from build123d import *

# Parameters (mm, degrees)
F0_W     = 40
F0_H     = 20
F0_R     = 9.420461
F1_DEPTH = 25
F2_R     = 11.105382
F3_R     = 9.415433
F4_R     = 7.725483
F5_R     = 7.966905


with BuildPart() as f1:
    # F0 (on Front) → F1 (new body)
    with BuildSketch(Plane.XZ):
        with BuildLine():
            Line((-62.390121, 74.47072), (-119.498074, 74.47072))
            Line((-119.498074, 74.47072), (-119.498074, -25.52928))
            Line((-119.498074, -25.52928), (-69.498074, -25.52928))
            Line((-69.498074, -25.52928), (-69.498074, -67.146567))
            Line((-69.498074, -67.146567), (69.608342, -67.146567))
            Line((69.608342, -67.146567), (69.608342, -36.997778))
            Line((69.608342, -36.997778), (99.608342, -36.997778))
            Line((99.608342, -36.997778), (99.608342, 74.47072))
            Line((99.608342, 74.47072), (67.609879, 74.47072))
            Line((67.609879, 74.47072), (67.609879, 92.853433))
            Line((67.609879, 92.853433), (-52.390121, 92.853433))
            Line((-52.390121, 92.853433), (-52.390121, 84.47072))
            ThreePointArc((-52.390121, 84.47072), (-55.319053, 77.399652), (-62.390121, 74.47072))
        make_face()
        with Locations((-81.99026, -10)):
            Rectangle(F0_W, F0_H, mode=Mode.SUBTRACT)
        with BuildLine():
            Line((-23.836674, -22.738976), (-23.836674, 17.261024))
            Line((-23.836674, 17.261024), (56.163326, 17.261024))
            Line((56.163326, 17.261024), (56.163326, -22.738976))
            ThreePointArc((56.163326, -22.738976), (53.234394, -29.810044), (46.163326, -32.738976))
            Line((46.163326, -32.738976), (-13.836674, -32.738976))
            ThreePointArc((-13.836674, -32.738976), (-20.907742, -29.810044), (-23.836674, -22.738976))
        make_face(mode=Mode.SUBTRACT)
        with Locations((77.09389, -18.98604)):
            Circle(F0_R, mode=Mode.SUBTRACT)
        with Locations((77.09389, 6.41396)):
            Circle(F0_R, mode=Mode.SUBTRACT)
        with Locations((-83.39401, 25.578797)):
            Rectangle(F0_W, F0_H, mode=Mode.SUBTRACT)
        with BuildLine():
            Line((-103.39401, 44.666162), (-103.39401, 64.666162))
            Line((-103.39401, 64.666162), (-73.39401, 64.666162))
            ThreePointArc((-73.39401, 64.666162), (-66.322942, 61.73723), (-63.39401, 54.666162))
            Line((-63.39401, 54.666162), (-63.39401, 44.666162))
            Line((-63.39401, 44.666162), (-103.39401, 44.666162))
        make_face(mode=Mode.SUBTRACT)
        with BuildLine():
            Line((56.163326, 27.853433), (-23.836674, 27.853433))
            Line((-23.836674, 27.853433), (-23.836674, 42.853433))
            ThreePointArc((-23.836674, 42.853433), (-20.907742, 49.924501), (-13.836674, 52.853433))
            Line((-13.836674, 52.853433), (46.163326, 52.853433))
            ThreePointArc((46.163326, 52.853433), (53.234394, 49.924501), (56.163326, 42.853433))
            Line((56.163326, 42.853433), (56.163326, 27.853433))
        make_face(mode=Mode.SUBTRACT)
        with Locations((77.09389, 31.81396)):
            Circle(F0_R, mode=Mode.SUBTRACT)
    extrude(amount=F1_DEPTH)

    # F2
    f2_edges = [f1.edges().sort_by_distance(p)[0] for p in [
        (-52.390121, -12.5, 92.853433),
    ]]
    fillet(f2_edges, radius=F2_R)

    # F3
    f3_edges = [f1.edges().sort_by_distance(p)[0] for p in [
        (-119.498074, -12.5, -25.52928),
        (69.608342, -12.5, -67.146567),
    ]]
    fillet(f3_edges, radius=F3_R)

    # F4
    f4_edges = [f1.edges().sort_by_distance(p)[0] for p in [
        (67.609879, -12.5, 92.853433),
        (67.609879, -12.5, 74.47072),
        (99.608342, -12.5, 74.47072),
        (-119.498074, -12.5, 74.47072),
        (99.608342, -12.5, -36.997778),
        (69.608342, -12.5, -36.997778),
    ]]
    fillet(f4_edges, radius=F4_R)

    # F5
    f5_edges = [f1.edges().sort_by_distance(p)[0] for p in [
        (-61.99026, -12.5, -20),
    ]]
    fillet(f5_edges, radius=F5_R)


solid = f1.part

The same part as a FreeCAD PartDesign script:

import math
import FreeCAD as App
import Part
import Sketcher

V = App.Vector
Q = App.Units.Quantity


def edges_at(feature, points):
    """Names of the edges that pass closest to the given points."""
    edges = feature.Shape.Edges
    near = lambda p: min(range(len(edges)), key=lambda i: edges[i].distToShape(Part.Vertex(*p))[0])
    return sorted({f"Edge{near(p) + 1}" for p in points})


def add_polygon(sketch, points):
    """Adds a closed chain of lines whose ends are joined by coincident constraints."""
    first, n = sketch.GeometryCount, len(points)
    for a, b in zip(points, points[1:] + points[:1]):
        sketch.addGeometry(Part.LineSegment(App.Vector(*a, 0), App.Vector(*b, 0)), False)
    for i in range(n):
        sketch.addConstraint(Sketcher.Constraint("Coincident", first + i, 2, first + (i + 1) % n, 1))

doc = App.newDocument("Part")
body = doc.addObject("PartDesign::Body", "Body")

# Sketch on XZ plane
sketch1 = body.newObject("Sketcher::SketchObject", "Sketch")
sketch1.AttachmentSupport = (doc.getObject("XZ_Plane"), [""])
sketch1.MapMode = "FlatFace"
sketch1.addGeometry(Part.LineSegment(V(-62, 74, 0), V(-119, 74, 0)), False)  # 0
sketch1.addGeometry(Part.LineSegment(V(-119, 74, 0), V(-119, -26, 0)), False)  # 1
sketch1.addGeometry(Part.LineSegment(V(-119, -26, 0), V(-69, -26, 0)), False)  # 2
sketch1.addGeometry(Part.LineSegment(V(-69, -26, 0), V(-69, -67, 0)), False)  # 3
sketch1.addGeometry(Part.LineSegment(V(-69, -67, 0), V(70, -67, 0)), False)  # 4
sketch1.addGeometry(Part.LineSegment(V(70, -67, 0), V(70, -37, 0)), False)  # 5
sketch1.addGeometry(Part.LineSegment(V(70, -37, 0), V(100, -37, 0)), False)  # 6
sketch1.addGeometry(Part.LineSegment(V(100, -37, 0), V(100, 74, 0)), False)  # 7
sketch1.addGeometry(Part.LineSegment(V(100, 74, 0), V(68, 74, 0)), False)  # 8
sketch1.addGeometry(Part.LineSegment(V(68, 74, 0), V(68, 93, 0)), False)  # 9
sketch1.addGeometry(Part.LineSegment(V(68, 93, 0), V(-52, 93, 0)), False)  # 10
sketch1.addGeometry(Part.LineSegment(V(-52, 93, 0), V(-52, 84, 0)), False)  # 11
sketch1.addGeometry(Part.ArcOfCircle(Part.Circle(V(-62, 84, 0), V(0, 0, 1), 10), math.radians(-90), math.radians(0)), False)  # 12
add_polygon(sketch1, [(-62, -20), (-102, -20), (-102, 0), (-62, 0)])  # lines 13-16
sketch1.addGeometry(Part.Circle(V(77, -19, 0), V(0, 0, 1), 9), False)  # 17
sketch1.addGeometry(Part.ArcOfCircle(Part.Circle(V(-14, -23, 0), V(0, 0, 1), 10), math.radians(180), math.radians(270)), False)  # 18
sketch1.addGeometry(Part.LineSegment(V(-24, -23, 0), V(-24, 17, 0)), False)  # 19
sketch1.addGeometry(Part.LineSegment(V(-24, 17, 0), V(56, 17, 0)), False)  # 20
sketch1.addGeometry(Part.LineSegment(V(56, 17, 0), V(56, -23, 0)), False)  # 21
sketch1.addGeometry(Part.ArcOfCircle(Part.Circle(V(46, -23, 0), V(0, 0, 1), 10), math.radians(-90), math.radians(0)), False)  # 22
sketch1.addGeometry(Part.LineSegment(V(46, -33, 0), V(-14, -33, 0)), False)  # 23
sketch1.addGeometry(Part.Circle(V(77, 6, 0), V(0, 0, 1), 9), False)  # 24
add_polygon(sketch1, [(-63, 16), (-103, 16), (-103, 36), (-63, 36)])  # lines 25-28
sketch1.addGeometry(Part.LineSegment(V(-63, 45, 0), V(-103, 45, 0)), False)  # 29
sketch1.addGeometry(Part.LineSegment(V(-103, 45, 0), V(-103, 65, 0)), False)  # 30
sketch1.addGeometry(Part.LineSegment(V(-103, 65, 0), V(-73, 65, 0)), False)  # 31
sketch1.addGeometry(Part.ArcOfCircle(Part.Circle(V(-73, 55, 0), V(0, 0, 1), 10), math.radians(0), math.radians(90)), False)  # 32
sketch1.addGeometry(Part.LineSegment(V(-63, 55, 0), V(-63, 45, 0)), False)  # 33
sketch1.addGeometry(Part.Circle(V(77, 32, 0), V(0, 0, 1), 9), False)  # 34
sketch1.addGeometry(Part.LineSegment(V(56, 43, 0), V(56, 28, 0)), False)  # 35
sketch1.addGeometry(Part.LineSegment(V(56, 28, 0), V(-24, 28, 0)), False)  # 36
sketch1.addGeometry(Part.LineSegment(V(-24, 28, 0), V(-24, 43, 0)), False)  # 37
sketch1.addGeometry(Part.ArcOfCircle(Part.Circle(V(-14, 43, 0), V(0, 0, 1), 10), math.radians(90), math.radians(180)), False)  # 38
sketch1.addGeometry(Part.LineSegment(V(-14, 53, 0), V(46, 53, 0)), False)  # 39
sketch1.addGeometry(Part.ArcOfCircle(Part.Circle(V(46, 43, 0), V(0, 0, 1), 10), math.radians(0), math.radians(90)), False)  # 40
sketch1.addConstraint(Sketcher.Constraint("Coincident", 0, 2, 1, 1))
sketch1.addConstraint(Sketcher.Constraint("Coincident", 1, 2, 2, 1))
sketch1.addConstraint(Sketcher.Constraint("Coincident", 2, 2, 3, 1))
sketch1.addConstraint(Sketcher.Constraint("Coincident", 3, 2, 4, 1))
sketch1.addConstraint(Sketcher.Constraint("Coincident", 4, 2, 5, 1))
sketch1.addConstraint(Sketcher.Constraint("Coincident", 5, 2, 6, 1))
sketch1.addConstraint(Sketcher.Constraint("Coincident", 6, 2, 7, 1))
sketch1.addConstraint(Sketcher.Constraint("Coincident", 7, 2, 8, 1))
sketch1.addConstraint(Sketcher.Constraint("Coincident", 8, 2, 9, 1))
sketch1.addConstraint(Sketcher.Constraint("Coincident", 9, 2, 10, 1))
sketch1.addConstraint(Sketcher.Constraint("Coincident", 10, 2, 11, 1))
sketch1.addConstraint(Sketcher.Constraint("Tangent", 11, 2, 12, 2))
sketch1.addConstraint(Sketcher.Constraint("Tangent", 12, 1, 0, 1))
sketch1.addConstraint(Sketcher.Constraint("Tangent", 18, 1, 19, 1))
sketch1.addConstraint(Sketcher.Constraint("Coincident", 19, 2, 20, 1))
sketch1.addConstraint(Sketcher.Constraint("Coincident", 20, 2, 21, 1))
sketch1.addConstraint(Sketcher.Constraint("Tangent", 21, 2, 22, 2))
sketch1.addConstraint(Sketcher.Constraint("Tangent", 22, 1, 23, 1))
sketch1.addConstraint(Sketcher.Constraint("Tangent", 23, 2, 18, 2))
sketch1.addConstraint(Sketcher.Constraint("Coincident", 29, 2, 30, 1))
sketch1.addConstraint(Sketcher.Constraint("Coincident", 30, 2, 31, 1))
sketch1.addConstraint(Sketcher.Constraint("Tangent", 31, 2, 32, 2))
sketch1.addConstraint(Sketcher.Constraint("Tangent", 32, 1, 33, 1))
sketch1.addConstraint(Sketcher.Constraint("Coincident", 33, 2, 29, 1))
sketch1.addConstraint(Sketcher.Constraint("Coincident", 35, 2, 36, 1))
sketch1.addConstraint(Sketcher.Constraint("Coincident", 36, 2, 37, 1))
sketch1.addConstraint(Sketcher.Constraint("Tangent", 37, 2, 38, 2))
sketch1.addConstraint(Sketcher.Constraint("Tangent", 38, 1, 39, 1))
sketch1.addConstraint(Sketcher.Constraint("Tangent", 39, 2, 40, 2))
sketch1.addConstraint(Sketcher.Constraint("Tangent", 40, 1, 35, 1))
sketch1.addConstraint(Sketcher.Constraint("Horizontal", 0))
sketch1.addConstraint(Sketcher.Constraint("Vertical", 1))
sketch1.addConstraint(Sketcher.Constraint("Horizontal", 2))
sketch1.addConstraint(Sketcher.Constraint("Vertical", 3))
sketch1.addConstraint(Sketcher.Constraint("Horizontal", 4))
sketch1.addConstraint(Sketcher.Constraint("Vertical", 5))
sketch1.addConstraint(Sketcher.Constraint("Horizontal", 6))
sketch1.addConstraint(Sketcher.Constraint("Vertical", 7))
sketch1.addConstraint(Sketcher.Constraint("Horizontal", 8))
sketch1.addConstraint(Sketcher.Constraint("Vertical", 9))
sketch1.addConstraint(Sketcher.Constraint("Horizontal", 10))
sketch1.addConstraint(Sketcher.Constraint("Vertical", 11))
sketch1.addConstraint(Sketcher.Constraint("Horizontal", 13))
sketch1.addConstraint(Sketcher.Constraint("Vertical", 14))
sketch1.addConstraint(Sketcher.Constraint("Horizontal", 15))
sketch1.addConstraint(Sketcher.Constraint("Vertical", 16))
sketch1.addConstraint(Sketcher.Constraint("Vertical", 19))
sketch1.addConstraint(Sketcher.Constraint("Horizontal", 20))
sketch1.addConstraint(Sketcher.Constraint("Vertical", 21))
sketch1.addConstraint(Sketcher.Constraint("Horizontal", 23))
sketch1.addConstraint(Sketcher.Constraint("Horizontal", 25))
sketch1.addConstraint(Sketcher.Constraint("Vertical", 26))
sketch1.addConstraint(Sketcher.Constraint("Horizontal", 27))
sketch1.addConstraint(Sketcher.Constraint("Vertical", 28))
sketch1.addConstraint(Sketcher.Constraint("Horizontal", 29))
sketch1.addConstraint(Sketcher.Constraint("Vertical", 30))
sketch1.addConstraint(Sketcher.Constraint("Horizontal", 31))
sketch1.addConstraint(Sketcher.Constraint("Vertical", 33))
sketch1.addConstraint(Sketcher.Constraint("Vertical", 35))
sketch1.addConstraint(Sketcher.Constraint("Horizontal", 36))
sketch1.addConstraint(Sketcher.Constraint("Vertical", 37))
sketch1.addConstraint(Sketcher.Constraint("Horizontal", 39))
sketch1.addConstraint(Sketcher.Constraint("Equal", 12, 18))
sketch1.addConstraint(Sketcher.Constraint("Equal", 18, 22))
sketch1.addConstraint(Sketcher.Constraint("Equal", 17, 24))
sketch1.addConstraint(Sketcher.Constraint("Equal", 22, 32))
sketch1.addConstraint(Sketcher.Constraint("Equal", 24, 34))
sketch1.addConstraint(Sketcher.Constraint("Equal", 32, 38))
sketch1.addConstraint(Sketcher.Constraint("Equal", 38, 40))
sketch1.addConstraint(Sketcher.Constraint("PointOnObject", 14, 2, -1))
sketch1.addConstraint(Sketcher.Constraint("Horizontal", 0, 2, 7, 2))
sketch1.addConstraint(Sketcher.Constraint("Vertical", 17, 3, 24, 3))
sketch1.addConstraint(Sketcher.Constraint("Vertical", 24, 3, 34, 3))
sketch1.addConstraint(Sketcher.Constraint("Vertical", 18, 3, 38, 3))
sketch1.addConstraint(Sketcher.Constraint("Vertical", 22, 3, 40, 3))
sketch1.addConstraint(Sketcher.Constraint("Vertical", 26, 2, 29, 2))
sketch1.addConstraint(Sketcher.Constraint("Vertical", 28, 2, 32, 1))
sketch1.addConstraint(Sketcher.Constraint("Equal", 15, 25))
sketch1.addConstraint(Sketcher.Constraint("Equal", 6, 31))
sketch1.addConstraint(Sketcher.Constraint("Equal", 29, 19))
sketch1.addConstraint(Sketcher.Constraint("Equal", 16, 26))
sketch1.addConstraint(Sketcher.Constraint("Equal", 28, 30))
sketch1.addConstraint(Sketcher.Constraint("Radius", 12, Q("9.999999 mm")))
sketch1.addConstraint(Sketcher.Constraint("DistanceX", 2, 1, 2, 2, Q("50 mm")))
sketch1.addConstraint(Sketcher.Constraint("DistanceX", 6, 1, 6, 2, Q("30 mm")))
sketch1.addConstraint(Sketcher.Constraint("DistanceX", 10, 2, 10, 1, Q("120 mm")))
sketch1.addConstraint(Sketcher.Constraint("DistanceX", 20, 1, 20, 2, Q("80 mm")))
sketch1.addConstraint(Sketcher.Constraint("DistanceY", 1, 2, 1, 1, Q("100 mm")))
sketch1.addConstraint(Sketcher.Constraint("DistanceY", 14, 1, 14, 2, Q("20 mm")))
sketch1.addConstraint(Sketcher.Constraint("DistanceY", 35, 2, 35, 1, Q("15 mm")))
sketch1.addConstraint(Sketcher.Constraint("DistanceY", 3, 2, 38, 3, Q("110.000001 mm")))
sketch1.addConstraint(Sketcher.Constraint("DistanceY", 40, 3, 9, 2, Q("49.999999 mm")))
sketch1.addConstraint(Sketcher.Constraint("DistanceY", 17, 3, 24, 3, Q("25.4 mm")))
sketch1.addConstraint(Sketcher.Constraint("DistanceY", 24, 3, 34, 3, Q("25.4 mm")))
sketch1.addConstraint(Sketcher.Constraint("Diameter", 17, Q("18.840922 mm")))
sketch1.addConstraint(Sketcher.Constraint("DistanceY", 5, 1, 5, 2, Q("30.148789 mm")))
sketch1.addConstraint(Sketcher.Constraint("DistanceX", 32, 3, 24, 3, Q("150.487899 mm")))
sketch1.addConstraint(Sketcher.Constraint("DistanceX", 0, 2, 38, 3, Q("105.661399 mm")))
sketch1.addConstraint(Sketcher.Constraint("DistanceY", 5, 2, 22, 3, Q("14.258801 mm")))
sketch1.addConstraint(Sketcher.Constraint("DistanceX", 0, 2, 0, 1, Q("57.107953 mm")))
sketch1.addConstraint(Sketcher.Constraint("DistanceX", 4, 1, 4, 2, Q("139.106416 mm")))
sketch1.addConstraint(Sketcher.Constraint("DistanceY", 3, 2, 3, 1, Q("41.617287 mm")))
sketch1.addConstraint(Sketcher.Constraint("DistanceX", 12, 3, -1, 1, Q("62.39012 mm")))
sketch1.addConstraint(Sketcher.Constraint("DistanceY", -1, 1, 12, 3, Q("84.470719 mm")))
sketch1.addConstraint(Sketcher.Constraint("DistanceX", -1, 1, 17, 3, Q("77.09389 mm")))
sketch1.addConstraint(Sketcher.Constraint("DistanceY", 17, 3, -1, 1, Q("18.98604 mm")))
sketch1.addConstraint(Sketcher.Constraint("DistanceX", 13, 2, -1, 1, Q("101.99026 mm")))
sketch1.addConstraint(Sketcher.Constraint("DistanceY", -1, 1, 30, 2, Q("64.666162 mm")))
sketch1.addConstraint(Sketcher.Constraint("DistanceY", -1, 1, 25, 2, Q("15.578797 mm")))
pad1 = body.newObject("PartDesign::Pad", "Pad")
pad1.Profile = sketch1
pad1.Length = 25
doc.recompute()

fillet = body.newObject("PartDesign::Fillet", "Fillet")
fillet.Base = (pad1, edges_at(pad1, [(-52.39, -12.5, 92.853)]))
fillet.Radius = 11.105382
doc.recompute()

fillet2 = body.newObject("PartDesign::Fillet", "Fillet001")
fillet2.Base = (fillet, edges_at(fillet, [(-119.498, -12.5, -25.529), (69.608, -12.5, -67.147)]))
fillet2.Radius = 9.415433
doc.recompute()

fillet3 = body.newObject("PartDesign::Fillet", "Fillet002")
fillet3.Base = (fillet2, edges_at(fillet2, [
    (67.61, -12.5, 92.853),
    (67.61, -12.5, 74.471),
    (99.608, -12.5, 74.471),
    (-119.498, -12.5, 74.471),
    (99.608, -12.5, -36.998),
    (69.608, -12.5, -36.998),
]))
fillet3.Radius = 7.725483
doc.recompute()

fillet4 = body.newObject("PartDesign::Fillet", "Fillet003")
fillet4.Base = (fillet3, edges_at(fillet3, [(-61.99, -12.5, -20)]))
fillet4.Radius = 7.966905

doc.recompute()
